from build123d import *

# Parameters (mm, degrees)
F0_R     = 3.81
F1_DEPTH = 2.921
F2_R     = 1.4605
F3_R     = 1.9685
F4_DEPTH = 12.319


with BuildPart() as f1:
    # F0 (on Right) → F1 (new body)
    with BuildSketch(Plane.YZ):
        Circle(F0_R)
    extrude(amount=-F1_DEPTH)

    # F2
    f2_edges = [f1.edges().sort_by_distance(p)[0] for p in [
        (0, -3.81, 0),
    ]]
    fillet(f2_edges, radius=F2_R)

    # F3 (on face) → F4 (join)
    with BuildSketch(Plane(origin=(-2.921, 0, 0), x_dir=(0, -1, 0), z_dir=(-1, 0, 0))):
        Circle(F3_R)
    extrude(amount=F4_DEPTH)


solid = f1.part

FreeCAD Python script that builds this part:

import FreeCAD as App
import Part
import Sketcher
from FreeCAD import Vector
Q = App.Units.Quantity


def edges_at(feature, points):
    """Names of the edges that pass closest to the given points."""
    edges = feature.Shape.Edges
    near = lambda p: min(range(len(edges)), key=lambda i: edges[i].distToShape(Part.Vertex(*p))[0])
    return sorted({f"Edge{near(p) + 1}" for p in points})

doc = App.newDocument("Part")
body = doc.addObject("PartDesign::Body", "Body")

sketch1 = body.newObject("Sketcher::SketchObject", "Sketch")
sketch1.AttachmentSupport = (doc.getObject("YZ_Plane"), [""])
sketch1.MapMode = "FlatFace"
sketch1.addGeometry(Part.Circle(Vector(0, 0, 0), Vector(0, 0, 1), 3.8), False)
sketch1.addConstraint(Sketcher.Constraint("Coincident", 0, 3, -1, 1))
sketch1.addConstraint(Sketcher.Constraint("Diameter", 0, Q("0.3 in")))
pad1 = body.newObject("PartDesign::Pad", "Pad")
pad1.Profile = sketch1
pad1.Length = Q("0.115 in")
pad1.Reversed = True
doc.recompute()

fillet = body.newObject("PartDesign::Fillet", "Fillet")
fillet.Base = (pad1, edges_at(pad1, [(0, -3.81, 0)]))
fillet.Radius = Q("0.0575 in")

sketch2 = body.newObject("Sketcher::SketchObject", "Sketch001")
sketch2.AttachmentSupport = (doc.getObject("YZ_Plane"), [""])
sketch2.MapMode = "FlatFace"
sketch2.AttachmentOffset = App.Placement(Vector(0, 0, -0.115 * 25.4), App.Rotation())
sketch2.addGeometry(Part.Circle(Vector(0, 0, 0), Vector(0, 0, 1), 2), False)
sketch2.addConstraint(Sketcher.Constraint("Coincident", 0, 3, -1, 1))
sketch2.addConstraint(Sketcher.Constraint("Diameter", 0, Q("0.155 in")))
pad2 = body.newObject("PartDesign::Pad", "Pad001")
pad2.Profile = sketch2
pad2.Length = Q("0.485 in")
pad2.Reversed = True

doc.recompute()
